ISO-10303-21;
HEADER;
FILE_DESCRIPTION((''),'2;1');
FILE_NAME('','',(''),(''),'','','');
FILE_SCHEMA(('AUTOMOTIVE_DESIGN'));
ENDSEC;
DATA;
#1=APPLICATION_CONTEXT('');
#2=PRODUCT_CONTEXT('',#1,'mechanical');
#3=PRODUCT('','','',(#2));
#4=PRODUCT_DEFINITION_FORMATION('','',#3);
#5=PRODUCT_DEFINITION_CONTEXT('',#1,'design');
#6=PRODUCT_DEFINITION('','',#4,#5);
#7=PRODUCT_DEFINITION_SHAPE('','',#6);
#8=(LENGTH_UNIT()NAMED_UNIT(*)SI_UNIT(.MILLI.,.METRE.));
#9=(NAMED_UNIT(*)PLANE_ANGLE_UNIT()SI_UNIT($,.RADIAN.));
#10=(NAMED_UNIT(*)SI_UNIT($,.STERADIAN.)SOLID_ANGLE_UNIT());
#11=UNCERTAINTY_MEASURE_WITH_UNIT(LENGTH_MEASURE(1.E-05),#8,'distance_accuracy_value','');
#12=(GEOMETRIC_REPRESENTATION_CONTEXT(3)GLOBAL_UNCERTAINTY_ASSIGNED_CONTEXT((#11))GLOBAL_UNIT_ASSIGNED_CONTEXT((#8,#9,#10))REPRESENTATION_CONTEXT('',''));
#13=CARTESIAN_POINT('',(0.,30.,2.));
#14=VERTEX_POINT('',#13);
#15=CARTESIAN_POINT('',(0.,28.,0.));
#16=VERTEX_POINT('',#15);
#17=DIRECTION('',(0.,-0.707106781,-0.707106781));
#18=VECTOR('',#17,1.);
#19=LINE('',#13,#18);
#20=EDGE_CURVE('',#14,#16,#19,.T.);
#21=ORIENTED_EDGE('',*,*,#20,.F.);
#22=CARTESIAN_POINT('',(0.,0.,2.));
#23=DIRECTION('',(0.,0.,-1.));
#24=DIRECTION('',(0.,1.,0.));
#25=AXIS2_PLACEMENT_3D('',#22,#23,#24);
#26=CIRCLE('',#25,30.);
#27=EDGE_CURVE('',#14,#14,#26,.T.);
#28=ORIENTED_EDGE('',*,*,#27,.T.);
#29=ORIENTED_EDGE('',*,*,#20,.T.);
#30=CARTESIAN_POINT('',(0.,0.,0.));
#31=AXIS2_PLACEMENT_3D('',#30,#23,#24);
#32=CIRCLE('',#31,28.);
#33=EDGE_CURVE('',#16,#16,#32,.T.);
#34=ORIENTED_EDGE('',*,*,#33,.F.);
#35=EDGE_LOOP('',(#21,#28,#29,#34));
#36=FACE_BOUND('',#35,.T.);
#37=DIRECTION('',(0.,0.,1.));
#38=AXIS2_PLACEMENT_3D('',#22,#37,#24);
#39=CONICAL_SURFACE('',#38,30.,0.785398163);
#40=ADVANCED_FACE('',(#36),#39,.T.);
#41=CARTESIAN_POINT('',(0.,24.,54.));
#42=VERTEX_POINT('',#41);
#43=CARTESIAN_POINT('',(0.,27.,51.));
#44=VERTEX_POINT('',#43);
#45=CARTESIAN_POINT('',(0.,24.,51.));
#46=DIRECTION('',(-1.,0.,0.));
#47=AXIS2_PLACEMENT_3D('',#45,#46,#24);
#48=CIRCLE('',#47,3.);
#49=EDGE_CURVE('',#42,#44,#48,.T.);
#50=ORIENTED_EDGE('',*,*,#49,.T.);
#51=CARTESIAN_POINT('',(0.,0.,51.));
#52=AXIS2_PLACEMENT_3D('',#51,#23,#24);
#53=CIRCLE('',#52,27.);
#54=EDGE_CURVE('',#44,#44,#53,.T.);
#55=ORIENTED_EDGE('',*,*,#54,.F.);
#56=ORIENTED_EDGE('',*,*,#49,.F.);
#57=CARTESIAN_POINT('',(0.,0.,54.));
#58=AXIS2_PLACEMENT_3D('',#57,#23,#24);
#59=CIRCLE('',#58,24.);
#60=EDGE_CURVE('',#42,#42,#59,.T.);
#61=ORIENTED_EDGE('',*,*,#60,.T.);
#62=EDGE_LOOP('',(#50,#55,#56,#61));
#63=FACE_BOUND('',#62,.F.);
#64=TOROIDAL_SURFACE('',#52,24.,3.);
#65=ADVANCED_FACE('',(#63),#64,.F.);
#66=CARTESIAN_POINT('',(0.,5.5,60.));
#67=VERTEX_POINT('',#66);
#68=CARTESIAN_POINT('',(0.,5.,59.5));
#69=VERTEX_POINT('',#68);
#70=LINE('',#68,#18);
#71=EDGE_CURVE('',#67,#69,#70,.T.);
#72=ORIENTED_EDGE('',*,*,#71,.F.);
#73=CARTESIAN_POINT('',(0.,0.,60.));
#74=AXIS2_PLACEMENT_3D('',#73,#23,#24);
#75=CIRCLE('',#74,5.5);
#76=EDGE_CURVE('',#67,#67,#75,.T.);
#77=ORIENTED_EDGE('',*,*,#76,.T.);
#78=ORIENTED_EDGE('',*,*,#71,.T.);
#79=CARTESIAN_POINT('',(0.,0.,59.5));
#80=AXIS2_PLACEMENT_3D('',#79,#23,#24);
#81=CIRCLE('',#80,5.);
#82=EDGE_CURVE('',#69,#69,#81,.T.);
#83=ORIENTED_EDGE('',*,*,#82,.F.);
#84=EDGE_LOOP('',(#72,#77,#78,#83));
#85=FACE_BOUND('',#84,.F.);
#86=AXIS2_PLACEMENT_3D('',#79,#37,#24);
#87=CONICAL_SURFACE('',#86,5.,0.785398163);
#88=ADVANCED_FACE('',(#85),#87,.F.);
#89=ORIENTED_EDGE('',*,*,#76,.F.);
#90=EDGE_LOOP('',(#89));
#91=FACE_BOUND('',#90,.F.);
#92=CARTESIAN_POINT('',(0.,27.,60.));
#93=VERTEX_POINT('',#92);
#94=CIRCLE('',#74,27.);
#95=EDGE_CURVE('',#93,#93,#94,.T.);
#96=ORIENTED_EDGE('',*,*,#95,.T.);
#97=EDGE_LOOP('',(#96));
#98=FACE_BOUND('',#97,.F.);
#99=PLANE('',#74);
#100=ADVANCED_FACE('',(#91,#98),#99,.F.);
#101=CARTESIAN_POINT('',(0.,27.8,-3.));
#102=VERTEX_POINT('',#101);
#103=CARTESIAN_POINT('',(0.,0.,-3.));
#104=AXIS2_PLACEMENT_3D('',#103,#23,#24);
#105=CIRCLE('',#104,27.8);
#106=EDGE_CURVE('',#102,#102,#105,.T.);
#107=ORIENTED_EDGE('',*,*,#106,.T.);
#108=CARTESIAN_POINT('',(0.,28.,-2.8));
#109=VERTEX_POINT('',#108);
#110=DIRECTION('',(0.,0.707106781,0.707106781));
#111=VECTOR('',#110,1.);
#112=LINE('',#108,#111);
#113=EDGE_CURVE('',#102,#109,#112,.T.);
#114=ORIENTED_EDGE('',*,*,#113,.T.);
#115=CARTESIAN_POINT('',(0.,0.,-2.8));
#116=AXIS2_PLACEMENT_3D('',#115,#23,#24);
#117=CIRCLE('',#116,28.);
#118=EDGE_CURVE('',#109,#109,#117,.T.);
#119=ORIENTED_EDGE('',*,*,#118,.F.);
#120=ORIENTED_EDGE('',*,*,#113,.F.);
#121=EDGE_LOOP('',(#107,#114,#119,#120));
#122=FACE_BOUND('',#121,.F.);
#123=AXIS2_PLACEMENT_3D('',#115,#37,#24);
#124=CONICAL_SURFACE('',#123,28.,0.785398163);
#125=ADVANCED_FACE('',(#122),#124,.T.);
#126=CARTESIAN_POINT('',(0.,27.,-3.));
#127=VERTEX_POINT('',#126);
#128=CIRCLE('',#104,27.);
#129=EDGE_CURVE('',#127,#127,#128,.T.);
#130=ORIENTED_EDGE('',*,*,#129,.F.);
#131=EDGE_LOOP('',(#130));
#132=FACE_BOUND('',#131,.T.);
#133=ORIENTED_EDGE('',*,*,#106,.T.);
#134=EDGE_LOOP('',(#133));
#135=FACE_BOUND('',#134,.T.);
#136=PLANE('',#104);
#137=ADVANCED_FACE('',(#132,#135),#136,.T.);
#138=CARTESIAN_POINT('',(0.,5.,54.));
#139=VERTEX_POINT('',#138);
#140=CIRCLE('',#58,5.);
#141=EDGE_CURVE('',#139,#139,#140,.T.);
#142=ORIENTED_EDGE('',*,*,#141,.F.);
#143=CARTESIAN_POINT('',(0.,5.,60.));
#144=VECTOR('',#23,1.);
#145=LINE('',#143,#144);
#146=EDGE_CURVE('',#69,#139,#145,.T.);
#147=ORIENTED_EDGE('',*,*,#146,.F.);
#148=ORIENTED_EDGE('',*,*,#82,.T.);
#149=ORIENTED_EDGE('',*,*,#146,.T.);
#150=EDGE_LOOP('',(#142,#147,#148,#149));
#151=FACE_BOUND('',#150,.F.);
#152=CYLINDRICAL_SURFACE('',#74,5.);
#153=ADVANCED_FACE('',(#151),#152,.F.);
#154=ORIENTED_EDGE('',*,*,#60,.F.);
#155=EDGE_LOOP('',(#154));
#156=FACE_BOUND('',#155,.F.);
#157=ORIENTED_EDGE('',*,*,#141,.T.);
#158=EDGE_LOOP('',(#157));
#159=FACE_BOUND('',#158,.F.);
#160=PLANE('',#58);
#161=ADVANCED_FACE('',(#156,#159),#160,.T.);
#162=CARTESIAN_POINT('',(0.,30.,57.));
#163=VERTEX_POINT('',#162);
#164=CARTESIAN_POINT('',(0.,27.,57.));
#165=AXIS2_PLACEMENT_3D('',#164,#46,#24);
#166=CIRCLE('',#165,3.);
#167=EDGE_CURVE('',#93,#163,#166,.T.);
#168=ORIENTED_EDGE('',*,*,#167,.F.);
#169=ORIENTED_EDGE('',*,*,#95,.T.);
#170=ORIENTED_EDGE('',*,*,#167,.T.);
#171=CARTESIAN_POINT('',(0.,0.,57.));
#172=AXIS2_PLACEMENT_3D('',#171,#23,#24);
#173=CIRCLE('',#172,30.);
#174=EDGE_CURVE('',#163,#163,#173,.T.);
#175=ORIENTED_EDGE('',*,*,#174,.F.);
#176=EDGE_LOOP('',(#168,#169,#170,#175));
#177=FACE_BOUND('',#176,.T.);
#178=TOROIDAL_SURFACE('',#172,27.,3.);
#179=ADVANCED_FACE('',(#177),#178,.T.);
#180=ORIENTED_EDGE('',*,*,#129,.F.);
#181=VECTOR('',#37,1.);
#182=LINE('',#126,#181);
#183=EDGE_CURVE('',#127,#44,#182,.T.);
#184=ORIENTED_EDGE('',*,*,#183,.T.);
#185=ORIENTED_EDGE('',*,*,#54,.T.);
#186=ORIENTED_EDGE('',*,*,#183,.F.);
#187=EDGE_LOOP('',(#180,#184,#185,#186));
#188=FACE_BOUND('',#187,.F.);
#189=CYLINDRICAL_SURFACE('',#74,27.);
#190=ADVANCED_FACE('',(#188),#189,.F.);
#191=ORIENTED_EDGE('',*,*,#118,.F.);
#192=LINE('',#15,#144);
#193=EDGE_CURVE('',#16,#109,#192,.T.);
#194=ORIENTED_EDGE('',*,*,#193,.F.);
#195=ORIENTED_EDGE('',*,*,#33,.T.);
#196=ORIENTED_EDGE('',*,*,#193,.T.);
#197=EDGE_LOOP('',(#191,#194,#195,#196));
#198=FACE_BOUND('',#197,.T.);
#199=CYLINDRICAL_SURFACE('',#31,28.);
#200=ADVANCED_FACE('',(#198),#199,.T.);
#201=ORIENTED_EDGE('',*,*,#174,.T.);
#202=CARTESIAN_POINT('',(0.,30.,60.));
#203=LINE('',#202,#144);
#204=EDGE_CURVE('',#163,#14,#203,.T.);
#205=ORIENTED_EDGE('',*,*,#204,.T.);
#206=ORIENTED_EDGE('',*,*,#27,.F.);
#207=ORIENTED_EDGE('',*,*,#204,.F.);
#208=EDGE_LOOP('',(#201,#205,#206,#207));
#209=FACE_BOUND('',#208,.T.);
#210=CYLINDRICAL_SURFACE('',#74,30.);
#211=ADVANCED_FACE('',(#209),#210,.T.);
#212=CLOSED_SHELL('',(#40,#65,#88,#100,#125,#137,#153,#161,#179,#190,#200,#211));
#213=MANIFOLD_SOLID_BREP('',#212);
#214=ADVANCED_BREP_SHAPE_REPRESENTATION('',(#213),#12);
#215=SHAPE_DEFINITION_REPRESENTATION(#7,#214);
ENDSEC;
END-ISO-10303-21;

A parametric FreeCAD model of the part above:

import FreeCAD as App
import Part
import Sketcher
from FreeCAD import Vector
Q = App.Units.Quantity


def edges_at(feature, points):
    """Names of the edges that pass closest to the given points."""
    edges = feature.Shape.Edges
    near = lambda p: min(range(len(edges)), key=lambda i: edges[i].distToShape(Part.Vertex(*p))[0])
    return sorted({f"Edge{near(p) + 1}" for p in points})


def add_polygon(sketch, points):
    """Adds a closed chain of lines whose ends are joined by coincident constraints."""
    first, n = sketch.GeometryCount, len(points)
    for a, b in zip(points, points[1:] + points[:1]):
        sketch.addGeometry(Part.LineSegment(App.Vector(*a, 0), App.Vector(*b, 0)), False)
    for i in range(n):
        sketch.addConstraint(Sketcher.Constraint("Coincident", first + i, 2, first + (i + 1) % n, 1))

doc = App.newDocument("Part")
body = doc.addObject("PartDesign::Body", "Body")

sketch1 = body.newObject("Sketcher::SketchObject", "Sketch")
sketch1.AttachmentSupport = (doc.getObject("YZ_Plane"), [""])
sketch1.MapMode = "FlatFace"
add_polygon(sketch1, [(27, 54), (27, -3), (28, -3), (28, 0), (30, 2), (30, 60), (5, 60), (5, 54)])
sketch1.addConstraint([
    Sketcher.Constraint("Vertical", 0),
    Sketcher.Constraint("Horizontal", 1),
    Sketcher.Constraint("Vertical", 2),
    Sketcher.Constraint("Vertical", 4),
    Sketcher.Constraint("Horizontal", 5),
    Sketcher.Constraint("Vertical", 6),
    Sketcher.Constraint("Horizontal", 7),
    Sketcher.Constraint("PointOnObject", 2, 2, -1),
    Sketcher.Constraint("DistanceX", 1, 1, 1, 2, Q("1 mm")),
    Sketcher.Constraint("DistanceY", 2, 1, 2, 2, Q("3 mm")),
    Sketcher.Constraint("DistanceY", 6, 2, 6, 1, Q("6 mm")),
    Sketcher.Constraint("DistanceX", -1, 1, 3, 2, Q("30 mm")),
    Sketcher.Constraint("DistanceY", -1, 1, 3, 2, Q("2 mm")),
    Sketcher.Constraint("DistanceX", -1, 1, 5, 2, Q("5 mm")),
    Sketcher.Constraint("DistanceX", 2, 2, 3, 2, Q("2 mm")),
    Sketcher.Constraint("DistanceY", 0, 2, 0, 1, Q("57 mm")),
])
revolution = body.newObject("PartDesign::Revolution", "Revolution")
revolution.Profile = sketch1
revolution.ReferenceAxis = (sketch1, ["V_Axis"])
revolution.Angle = 360
doc.recompute()

fillet = body.newObject("PartDesign::Fillet", "Fillet")
fillet.Base = (revolution, edges_at(revolution, [(0, -30, 60)]))
fillet.Radius = 3
doc.recompute()

chamfer = body.newObject("PartDesign::Chamfer", "Chamfer")
chamfer.Base = (fillet, edges_at(fillet, [(0, -5, 60)]))
chamfer.Size = 0.5
doc.recompute()

fillet2 = body.newObject("PartDesign::Fillet", "Fillet001")
fillet2.Base = (chamfer, edges_at(chamfer, [(0, -27, 54)]))
fillet2.Radius = 3
doc.recompute()

chamfer2 = body.newObject("PartDesign::Chamfer", "Chamfer001")
chamfer2.Base = (fillet2, edges_at(fillet2, [(0, -28, -3)]))
chamfer2.Size = 0.2

doc.recompute()
